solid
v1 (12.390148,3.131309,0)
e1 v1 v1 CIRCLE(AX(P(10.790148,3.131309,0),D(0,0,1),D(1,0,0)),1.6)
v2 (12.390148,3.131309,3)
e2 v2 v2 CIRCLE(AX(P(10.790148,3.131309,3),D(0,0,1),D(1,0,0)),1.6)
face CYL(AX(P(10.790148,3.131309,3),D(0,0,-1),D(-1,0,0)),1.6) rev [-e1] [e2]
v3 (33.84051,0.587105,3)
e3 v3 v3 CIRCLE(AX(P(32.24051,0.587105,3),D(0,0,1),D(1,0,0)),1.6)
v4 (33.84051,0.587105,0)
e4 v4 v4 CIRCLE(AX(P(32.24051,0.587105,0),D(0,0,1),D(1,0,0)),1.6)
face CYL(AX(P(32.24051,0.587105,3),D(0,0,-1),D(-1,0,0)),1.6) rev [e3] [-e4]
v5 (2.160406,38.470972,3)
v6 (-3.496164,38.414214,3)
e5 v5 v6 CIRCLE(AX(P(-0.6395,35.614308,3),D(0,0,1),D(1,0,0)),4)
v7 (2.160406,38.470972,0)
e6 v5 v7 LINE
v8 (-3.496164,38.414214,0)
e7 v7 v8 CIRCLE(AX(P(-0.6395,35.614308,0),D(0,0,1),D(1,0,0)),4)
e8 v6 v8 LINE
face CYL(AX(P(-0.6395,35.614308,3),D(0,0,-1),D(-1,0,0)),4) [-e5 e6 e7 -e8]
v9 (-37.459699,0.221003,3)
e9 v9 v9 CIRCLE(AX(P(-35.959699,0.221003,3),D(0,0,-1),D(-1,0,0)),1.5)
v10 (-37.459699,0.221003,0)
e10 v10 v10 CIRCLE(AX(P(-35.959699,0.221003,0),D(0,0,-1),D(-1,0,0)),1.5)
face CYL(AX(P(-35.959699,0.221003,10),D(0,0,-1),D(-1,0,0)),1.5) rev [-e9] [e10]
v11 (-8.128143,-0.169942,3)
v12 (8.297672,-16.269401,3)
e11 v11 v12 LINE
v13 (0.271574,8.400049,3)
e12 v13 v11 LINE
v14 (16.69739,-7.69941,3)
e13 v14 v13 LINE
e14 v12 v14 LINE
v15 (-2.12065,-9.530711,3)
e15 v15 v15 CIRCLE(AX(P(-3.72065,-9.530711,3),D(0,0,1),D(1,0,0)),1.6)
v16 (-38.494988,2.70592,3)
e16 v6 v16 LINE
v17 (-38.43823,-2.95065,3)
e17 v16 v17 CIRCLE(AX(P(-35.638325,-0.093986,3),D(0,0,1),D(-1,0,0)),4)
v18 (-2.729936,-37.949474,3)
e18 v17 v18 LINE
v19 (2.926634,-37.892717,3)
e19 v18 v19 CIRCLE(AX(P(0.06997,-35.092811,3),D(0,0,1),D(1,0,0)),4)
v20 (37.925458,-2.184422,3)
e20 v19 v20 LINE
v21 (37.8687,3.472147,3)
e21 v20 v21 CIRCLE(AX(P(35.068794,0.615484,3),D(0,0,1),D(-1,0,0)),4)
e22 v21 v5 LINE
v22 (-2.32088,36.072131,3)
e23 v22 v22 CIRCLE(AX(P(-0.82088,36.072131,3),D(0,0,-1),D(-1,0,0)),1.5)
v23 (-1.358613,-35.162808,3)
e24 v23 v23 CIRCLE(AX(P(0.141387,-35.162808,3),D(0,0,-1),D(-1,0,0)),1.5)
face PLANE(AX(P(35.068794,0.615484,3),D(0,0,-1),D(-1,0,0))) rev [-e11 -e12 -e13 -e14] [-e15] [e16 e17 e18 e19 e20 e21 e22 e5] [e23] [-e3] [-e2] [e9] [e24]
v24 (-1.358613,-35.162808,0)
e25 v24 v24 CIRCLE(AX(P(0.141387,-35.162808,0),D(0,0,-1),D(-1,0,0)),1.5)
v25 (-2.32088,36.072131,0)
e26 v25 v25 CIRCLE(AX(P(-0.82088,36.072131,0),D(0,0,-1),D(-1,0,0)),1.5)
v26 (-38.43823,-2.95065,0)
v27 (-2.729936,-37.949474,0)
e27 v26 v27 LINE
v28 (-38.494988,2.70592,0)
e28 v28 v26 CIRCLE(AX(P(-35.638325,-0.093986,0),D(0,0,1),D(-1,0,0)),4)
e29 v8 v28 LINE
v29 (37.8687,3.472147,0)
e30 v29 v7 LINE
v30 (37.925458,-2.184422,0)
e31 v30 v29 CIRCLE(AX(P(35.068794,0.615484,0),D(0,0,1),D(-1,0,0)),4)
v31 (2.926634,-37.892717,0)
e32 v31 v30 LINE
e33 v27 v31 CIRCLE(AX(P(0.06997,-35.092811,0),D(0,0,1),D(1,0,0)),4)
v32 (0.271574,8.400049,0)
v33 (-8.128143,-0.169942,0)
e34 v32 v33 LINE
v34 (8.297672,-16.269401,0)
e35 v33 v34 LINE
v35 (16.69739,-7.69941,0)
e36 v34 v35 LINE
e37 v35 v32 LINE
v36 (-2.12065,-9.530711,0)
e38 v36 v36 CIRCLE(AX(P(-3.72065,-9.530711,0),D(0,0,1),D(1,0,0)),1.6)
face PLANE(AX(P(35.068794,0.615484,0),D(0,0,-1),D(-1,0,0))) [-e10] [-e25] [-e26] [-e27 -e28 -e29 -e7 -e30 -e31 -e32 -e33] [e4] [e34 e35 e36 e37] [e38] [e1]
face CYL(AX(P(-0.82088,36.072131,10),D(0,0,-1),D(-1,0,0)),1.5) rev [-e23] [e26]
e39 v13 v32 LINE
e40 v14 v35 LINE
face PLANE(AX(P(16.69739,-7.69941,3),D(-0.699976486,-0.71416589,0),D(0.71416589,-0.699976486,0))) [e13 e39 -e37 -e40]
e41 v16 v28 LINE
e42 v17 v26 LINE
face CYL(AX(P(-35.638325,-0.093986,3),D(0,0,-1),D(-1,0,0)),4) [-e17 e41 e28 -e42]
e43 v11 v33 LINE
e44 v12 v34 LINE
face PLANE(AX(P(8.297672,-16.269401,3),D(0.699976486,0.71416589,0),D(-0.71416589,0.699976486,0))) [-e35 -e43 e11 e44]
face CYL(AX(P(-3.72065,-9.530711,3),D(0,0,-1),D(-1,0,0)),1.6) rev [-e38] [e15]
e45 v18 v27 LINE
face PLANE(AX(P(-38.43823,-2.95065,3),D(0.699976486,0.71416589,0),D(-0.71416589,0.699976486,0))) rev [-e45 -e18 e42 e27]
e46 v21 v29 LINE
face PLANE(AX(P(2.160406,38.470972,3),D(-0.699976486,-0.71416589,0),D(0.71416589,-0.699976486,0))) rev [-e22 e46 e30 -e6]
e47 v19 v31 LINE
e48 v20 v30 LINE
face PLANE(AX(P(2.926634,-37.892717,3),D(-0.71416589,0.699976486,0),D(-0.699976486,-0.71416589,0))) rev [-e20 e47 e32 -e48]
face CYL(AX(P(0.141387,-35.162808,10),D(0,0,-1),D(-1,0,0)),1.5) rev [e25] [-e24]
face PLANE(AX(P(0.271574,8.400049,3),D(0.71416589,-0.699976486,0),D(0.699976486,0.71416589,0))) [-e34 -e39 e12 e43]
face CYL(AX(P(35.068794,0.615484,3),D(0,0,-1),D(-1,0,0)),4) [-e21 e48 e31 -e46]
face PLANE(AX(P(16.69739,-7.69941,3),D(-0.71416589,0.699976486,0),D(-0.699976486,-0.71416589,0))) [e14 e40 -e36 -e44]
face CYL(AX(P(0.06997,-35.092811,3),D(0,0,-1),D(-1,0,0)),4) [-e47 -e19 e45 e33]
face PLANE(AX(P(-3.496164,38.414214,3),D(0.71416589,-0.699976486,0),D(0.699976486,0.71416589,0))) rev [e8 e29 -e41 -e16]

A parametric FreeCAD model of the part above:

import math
import FreeCAD as App
import Part
import Sketcher
from FreeCAD import Vector
Q = App.Units.Quantity

doc = App.newDocument("Part")
body = doc.addObject("PartDesign::Body", "Body")

# Sketch on XY plane
sketch1 = doc.addObject("Sketcher::SketchObject", "Sketch")
body.addObject(sketch1)
sketch1.AttachmentSupport = (doc.XY_Plane, [""])
sketch1.MapMode = "FlatFace"
sketch1.addGeometry([
    Part.LineSegment(Vector(37.9, 3.5, 0), Vector(2.2, 38.5, 0)),  # 0
    Part.ArcOfCircle(Part.Circle(Vector(-0.6, 35.6, 0), Vector(0, 0, 1), 4), math.radians(46), math.radians(136)),  # 1
    Part.LineSegment(Vector(-3.5, 38.4, 0), Vector(-38.5, 2.7, 0)),  # 2
    Part.ArcOfCircle(Part.Circle(Vector(-35.6, -0.1, 0), Vector(0, 0, 1), 4), math.radians(136), math.radians(226)),  # 3
    Part.LineSegment(Vector(-38.4, -3, 0), Vector(-2.7, -37.9, 0)),  # 4
    Part.ArcOfCircle(Part.Circle(Vector(0.1, -35.1, 0), Vector(0, 0, 1), 4), math.radians(-134), math.radians(-44)),  # 5
    Part.LineSegment(Vector(2.9, -37.9, 0), Vector(37.9, -2.2, 0)),  # 6
    Part.ArcOfCircle(Part.Circle(Vector(35.1, 0.6, 0), Vector(0, 0, 1), 4), math.radians(-44), math.radians(46)),  # 7
    Part.Circle(Vector(-3.7, -9.5, 0), Vector(0, 0, 1), 1.6),  # 8
    Part.Circle(Vector(32.2, 0.6, 0), Vector(0, 0, 1), 1.6),  # 9
    Part.LineSegment(Vector(16.7, -7.7, 0), Vector(8.3, -16.3, 0)),  # 10
    Part.LineSegment(Vector(8.3, -16.3, 0), Vector(-8.1, -0.2, 0)),  # 11
    Part.LineSegment(Vector(-8.1, -0.2, 0), Vector(0.3, 8.4, 0)),  # 12
    Part.LineSegment(Vector(0.3, 8.4, 0), Vector(16.7, -7.7, 0)),  # 13
    Part.Circle(Vector(10.8, 3.1, 0), Vector(0, 0, 1), 1.6),  # 14
], False)
sketch1.addConstraint([
    Sketcher.Constraint("Tangent", 0, 2, 1, 1),
    Sketcher.Constraint("Tangent", 1, 2, 2, 1),
    Sketcher.Constraint("Tangent", 2, 2, 3, 1),
    Sketcher.Constraint("Tangent", 3, 2, 4, 1),
    Sketcher.Constraint("Tangent", 4, 2, 5, 1),
    Sketcher.Constraint("Tangent", 5, 2, 6, 1),
    Sketcher.Constraint("Tangent", 6, 2, 7, 1),
    Sketcher.Constraint("Tangent", 7, 2, 0, 1),
    Sketcher.Constraint("Coincident", 10, 2, 11, 1),
    Sketcher.Constraint("Coincident", 11, 2, 12, 1),
    Sketcher.Constraint("Coincident", 12, 2, 13, 1),
    Sketcher.Constraint("Coincident", 13, 2, 10, 1),
    Sketcher.Constraint("Equal", 1, 3),
    Sketcher.Constraint("Equal", 3, 5),
    Sketcher.Constraint("Equal", 5, 7),
    Sketcher.Constraint("Equal", 8, 9),
    Sketcher.Constraint("Equal", 9, 14),
    Sketcher.Constraint("Perpendicular", 0, 2),
    Sketcher.Constraint("Perpendicular", 2, 4),
    Sketcher.Constraint("Perpendicular", 4, 6),
    Sketcher.Constraint("Parallel", 6, 10),
    Sketcher.Constraint("Perpendicular", 10, 11),
    Sketcher.Constraint("Perpendicular", 11, 12),
    Sketcher.Constraint("Perpendicular", 12, 13),
    Sketcher.Constraint("Equal", 0, 2),
    Sketcher.Constraint("Radius", 1, Q("4 mm")),
    Sketcher.Constraint("Diameter", 8, Q("3.2 mm")),
    Sketcher.Constraint("Distance", 0, Q("50 mm")),
    Sketcher.Constraint("Distance", 10, Q("12 mm")),
    Sketcher.Constraint("Distance", 11, Q("23 mm")),
    Sketcher.Constraint("DistanceY", 14, 3, 1, 3, Q("32.482999 mm")),
    Sketcher.Constraint("DistanceX", 1, 3, -1, 1, Q("0.6395 mm")),
    Sketcher.Constraint("DistanceX", -1, 1, 7, 2, Q("37.8687 mm")),
    Sketcher.Constraint("DistanceY", 10, 2, -1, 1, Q("16.269401 mm")),
    Sketcher.Constraint("DistanceY", 5, 3, 8, 3, Q("25.5621 mm")),
    Sketcher.Constraint("DistanceY", 8, 3, 13, 2, Q("1.831301 mm")),
    Sketcher.Constraint("DistanceX", 8, 3, -1, 1, Q("3.72065 mm")),
    Sketcher.Constraint("DistanceX", -1, 1, 9, 3, Q("32.24051 mm")),
    Sketcher.Constraint("DistanceX", -1, 1, 13, 2, Q("16.69739 mm")),
    Sketcher.Constraint("DistanceY", 9, 3, 7, 3, Q("0.028379 mm")),
    Sketcher.Constraint("DistanceX", 14, 3, 9, 3, Q("21.450362 mm")),
])
pad1 = doc.addObject("PartDesign::Pad", "Pad")
body.addObject(pad1)
pad1.Profile = sketch1
pad1.Length = 3

# Sketch on XY plane
sketch2 = doc.addObject("Sketcher::SketchObject", "Sketch001")
body.addObject(sketch2)
sketch2.AttachmentSupport = (doc.XY_Plane, [""])
sketch2.MapMode = "FlatFace"
sketch2.addGeometry([
    Part.Circle(Vector(-0.8, 36.1, 0), Vector(0, 0, 1), 1.5),
    Part.Circle(Vector(-36, 0.2, 0), Vector(0, 0, 1), 1.5),
    Part.Circle(Vector(0.1, -35.2, 0), Vector(0, 0, 1), 1.5),
], False)
sketch2.addConstraint([
    Sketcher.Constraint("Equal", 0, 1),
    Sketcher.Constraint("Equal", 1, 2),
    Sketcher.Constraint("Diameter", 0, Q("3 mm")),
    Sketcher.Constraint("DistanceX", 1, 3, -1, 1, Q("35.959699 mm")),
    Sketcher.Constraint("DistanceX", 0, 3, -1, 1, Q("0.82088 mm")),
    Sketcher.Constraint("DistanceY", -1, 1, 0, 3, Q("36.072131 mm")),
    Sketcher.Constraint("DistanceY", 2, 3, -1, 1, Q("35.162808 mm")),
    Sketcher.Constraint("DistanceY", 2, 3, 1, 3, Q("35.383811 mm")),
    Sketcher.Constraint("DistanceX", -1, 1, 2, 3, Q("0.141387 mm")),
])
pocket1 = doc.addObject("PartDesign::Pocket", "Pocket")
body.addObject(pocket1)
pocket1.Profile = sketch2
pocket1.Length = 10
pocket1.Reversed = True

doc.recompute()
